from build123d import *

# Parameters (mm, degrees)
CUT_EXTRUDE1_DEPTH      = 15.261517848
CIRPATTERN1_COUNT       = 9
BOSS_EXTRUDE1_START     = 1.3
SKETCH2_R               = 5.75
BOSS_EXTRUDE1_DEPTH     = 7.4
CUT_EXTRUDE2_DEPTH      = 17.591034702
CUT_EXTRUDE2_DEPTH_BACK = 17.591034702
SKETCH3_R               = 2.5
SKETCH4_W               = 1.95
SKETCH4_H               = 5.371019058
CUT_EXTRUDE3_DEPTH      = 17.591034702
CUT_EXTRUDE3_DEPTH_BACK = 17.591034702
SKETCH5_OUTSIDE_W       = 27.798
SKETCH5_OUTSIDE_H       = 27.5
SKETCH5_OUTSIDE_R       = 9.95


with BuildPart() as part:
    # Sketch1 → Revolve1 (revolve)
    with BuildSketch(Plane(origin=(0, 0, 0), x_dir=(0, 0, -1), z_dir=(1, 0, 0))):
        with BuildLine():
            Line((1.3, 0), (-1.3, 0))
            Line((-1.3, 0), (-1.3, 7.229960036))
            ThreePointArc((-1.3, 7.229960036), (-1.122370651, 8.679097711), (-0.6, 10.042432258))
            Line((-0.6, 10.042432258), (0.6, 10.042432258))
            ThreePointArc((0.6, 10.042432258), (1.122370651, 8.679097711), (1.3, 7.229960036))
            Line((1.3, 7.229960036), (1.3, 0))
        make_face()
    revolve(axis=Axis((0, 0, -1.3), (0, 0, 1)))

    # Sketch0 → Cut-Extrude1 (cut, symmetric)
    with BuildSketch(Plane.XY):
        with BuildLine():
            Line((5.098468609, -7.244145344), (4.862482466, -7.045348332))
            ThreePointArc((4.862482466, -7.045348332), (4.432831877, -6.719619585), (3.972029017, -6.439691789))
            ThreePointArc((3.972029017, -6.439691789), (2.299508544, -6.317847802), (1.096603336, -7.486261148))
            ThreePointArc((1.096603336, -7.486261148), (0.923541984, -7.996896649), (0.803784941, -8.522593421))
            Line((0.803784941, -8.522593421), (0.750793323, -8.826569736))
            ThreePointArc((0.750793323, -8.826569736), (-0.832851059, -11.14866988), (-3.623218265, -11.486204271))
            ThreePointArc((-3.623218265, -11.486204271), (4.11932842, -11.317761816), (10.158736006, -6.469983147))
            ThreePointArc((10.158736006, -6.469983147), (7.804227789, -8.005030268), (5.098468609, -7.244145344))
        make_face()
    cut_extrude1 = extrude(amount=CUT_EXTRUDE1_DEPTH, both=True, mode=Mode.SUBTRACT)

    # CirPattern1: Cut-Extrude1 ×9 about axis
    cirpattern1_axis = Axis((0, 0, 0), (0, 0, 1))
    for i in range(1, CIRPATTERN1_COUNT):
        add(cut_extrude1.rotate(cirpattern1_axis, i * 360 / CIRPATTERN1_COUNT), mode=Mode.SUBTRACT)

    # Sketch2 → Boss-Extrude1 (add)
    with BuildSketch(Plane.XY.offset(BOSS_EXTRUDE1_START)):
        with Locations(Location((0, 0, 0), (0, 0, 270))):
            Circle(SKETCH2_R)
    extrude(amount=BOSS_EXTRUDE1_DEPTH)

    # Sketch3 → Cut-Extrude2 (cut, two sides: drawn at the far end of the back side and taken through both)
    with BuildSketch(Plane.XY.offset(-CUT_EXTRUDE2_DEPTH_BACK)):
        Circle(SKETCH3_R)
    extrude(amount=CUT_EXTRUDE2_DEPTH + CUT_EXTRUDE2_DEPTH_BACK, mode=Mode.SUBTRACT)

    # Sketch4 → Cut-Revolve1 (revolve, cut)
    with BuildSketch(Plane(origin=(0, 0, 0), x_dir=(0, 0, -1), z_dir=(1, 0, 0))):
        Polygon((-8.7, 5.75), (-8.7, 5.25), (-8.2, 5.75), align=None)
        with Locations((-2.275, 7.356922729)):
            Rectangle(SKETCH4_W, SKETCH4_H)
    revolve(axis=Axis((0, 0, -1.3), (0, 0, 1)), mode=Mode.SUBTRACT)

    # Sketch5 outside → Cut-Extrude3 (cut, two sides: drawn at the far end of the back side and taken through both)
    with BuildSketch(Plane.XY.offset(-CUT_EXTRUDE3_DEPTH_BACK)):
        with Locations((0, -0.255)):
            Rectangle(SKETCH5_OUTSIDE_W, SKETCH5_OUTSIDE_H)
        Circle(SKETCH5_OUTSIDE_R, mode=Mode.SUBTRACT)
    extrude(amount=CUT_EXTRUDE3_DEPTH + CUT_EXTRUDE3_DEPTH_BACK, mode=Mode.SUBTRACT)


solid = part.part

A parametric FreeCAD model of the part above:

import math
import FreeCAD as App
import Part
import Sketcher

V = App.Vector
Q = App.Units.Quantity


def add_polygon(sketch, points):
    """Adds a closed chain of lines whose ends are joined by coincident constraints."""
    first, n = sketch.GeometryCount, len(points)
    for a, b in zip(points, points[1:] + points[:1]):
        sketch.addGeometry(Part.LineSegment(App.Vector(*a, 0), App.Vector(*b, 0)), False)
    for i in range(n):
        sketch.addConstraint(Sketcher.Constraint("Coincident", first + i, 2, first + (i + 1) % n, 1))

doc = App.newDocument("Part")
body = doc.addObject("PartDesign::Body", "Body")

sketch1 = body.newObject("Sketcher::SketchObject", "Sketch")
sketch1.AttachmentSupport = (doc.getObject("YZ_Plane"), [""])
sketch1.MapMode = "FlatFace"
sketch1.addGeometry([
    Part.LineSegment(V(0, 1.3, 0), V(0, -1.3, 0)),
    Part.LineSegment(V(0, -1.3, 0), V(7.2, -1.3, 0)),
    Part.ArcOfCircle(Part.Circle(V(7.2, 4.7, 0), V(0, 0, 1), 6), math.radians(-90), math.radians(-62)),
    Part.LineSegment(V(10, -0.6, 0), V(10, 0.6, 0)),
    Part.ArcOfCircle(Part.Circle(V(7.2, -4.7, 0), V(0, 0, 1), 6), math.radians(62), math.radians(90)),
    Part.LineSegment(V(7.2, 1.3, 0), V(0, 1.3, 0)),
], False)
sketch1.addConstraint([
    Sketcher.Constraint("Coincident", 0, 2, 1, 1),
    Sketcher.Constraint("Tangent", 1, 2, 2, 1),
    Sketcher.Constraint("Coincident", 2, 2, 3, 1),
    Sketcher.Constraint("Coincident", 3, 2, 4, 1),
    Sketcher.Constraint("Tangent", 4, 2, 5, 1),
    Sketcher.Constraint("Coincident", 5, 2, 0, 1),
    Sketcher.Constraint("Vertical", 0),
    Sketcher.Constraint("Horizontal", 1),
    Sketcher.Constraint("Vertical", 3),
    Sketcher.Constraint("Horizontal", 5),
    Sketcher.Constraint("Equal", 2, 4),
    Sketcher.Constraint("Symmetric", 0, 2, 5, 2, -1, 1),
    Sketcher.Constraint("Vertical", 2, 3, 4, 3),
    Sketcher.Constraint("Radius", 2, Q("6 mm")),
    Sketcher.Constraint("DistanceY", 0, 2, 0, 1, Q("2.6 mm")),
    Sketcher.Constraint("DistanceY", 3, 1, 3, 2, Q("1.2 mm")),
    Sketcher.Constraint("DistanceX", 1, 1, 1, 2, Q("7.22996 mm")),
])
revolution = body.newObject("PartDesign::Revolution", "Revolution")
revolution.Profile = sketch1
revolution.ReferenceAxis = (sketch1, ["V_Axis"])
revolution.Angle = 360

sketch2 = body.newObject("Sketcher::SketchObject", "Sketch001")
sketch2.AttachmentSupport = (doc.getObject("XY_Plane"), [""])
sketch2.MapMode = "FlatFace"
sketch2.addGeometry([
    Part.LineSegment(V(5.1, -7.24, 0), V(4.86, -7.05, 0)),
    Part.ArcOfCircle(Part.Circle(V(1.48, -11.06, 0), V(0, 0, 1), 5.25), math.radians(49.89), math.radians(61.67)),
    Part.ArcOfCircle(Part.Circle(V(3, -8.24, 0), V(0, 0, 1), 2.05), math.radians(62), math.radians(158)),
    Part.ArcOfCircle(Part.Circle(V(5.97, -9.42, 0), V(0, 0, 1), 5.25), math.radians(158.33), math.radians(170.11)),
    Part.LineSegment(V(0.8, -8.52, 0), V(0.75, -8.83, 0)),
    Part.ArcOfCircle(Part.Circle(V(-2.6, -8.24, 0), V(0, 0, 1), 3.4), math.radians(-108), math.radians(-10)),
    Part.ArcOfCircle(Part.Circle(V(0, 0, 0), V(0, 0, 1), 12.04), math.radians(-108), math.radians(-32)),
    Part.ArcOfCircle(Part.Circle(V(7.29, -4.64, 0), V(0, 0, 1), 3.4), math.radians(-130), math.radians(-32)),
], False)
sketch2.addConstraint([
    Sketcher.Constraint("Tangent", 0, 2, 1, 1),
    Sketcher.Constraint("Tangent", 1, 2, 2, 1),
    Sketcher.Constraint("Tangent", 2, 2, 3, 1),
    Sketcher.Constraint("Tangent", 3, 2, 4, 1),
    Sketcher.Constraint("Tangent", 4, 2, 5, 2),
    Sketcher.Constraint("Tangent", 5, 1, 6, 1),
    Sketcher.Constraint("Tangent", 6, 2, 7, 2),
    Sketcher.Constraint("Tangent", 7, 1, 0, 1),
    Sketcher.Constraint("Coincident", 6, 3, -1, 1),
    Sketcher.Constraint("Equal", 1, 3),
    Sketcher.Constraint("Equal", 5, 7),
    Sketcher.Constraint("Horizontal", 2, 3, 5, 3),
    Sketcher.Constraint("Equal", 0, 4),
    Sketcher.Constraint("DistanceX", -1, 1, 2, 3, Q("3 mm")),
    Sketcher.Constraint("DistanceX", 5, 3, -1, 1, Q("2.6 mm")),
    Sketcher.Constraint("Radius", 1, Q("5.2481 mm")),
    Sketcher.Constraint("Radius", 2, Q("2.0481 mm")),
    Sketcher.Constraint("Radius", 5, Q("3.401328 mm")),
    Sketcher.Constraint("Radius", 6, Q("12.044111 mm")),
    Sketcher.Constraint("DistanceY", 3, 3, 1, 2, Q("2.9842 mm")),
    Sketcher.Constraint("DistanceY", 3, 2, 1, 2, Q("2.082902 mm")),
])
pocket1 = body.newObject("PartDesign::Pocket", "Pocket")
pocket1.Profile = sketch2
pocket1.Length = 30.523036
pocket1.Midplane = True
doc.recompute()

polarpattern = body.newObject("PartDesign::PolarPattern", "PolarPattern")
polarpattern.Originals = [pocket1]
polarpattern.Axis = (doc.getObject("Z_Axis"), [""])
polarpattern.Angle = 360
polarpattern.Occurrences = 9
body.Tip = polarpattern

sketch3 = body.newObject("Sketcher::SketchObject", "Sketch002")
sketch3.AttachmentSupport = (doc.getObject("XY_Plane"), [""])
sketch3.MapMode = "FlatFace"
sketch3.AttachmentOffset = App.Placement(V(0, 0, 1.3), App.Rotation())
sketch3.addGeometry(Part.Circle(V(0, 0, 0), V(0, 0, 1), 6), False)
sketch3.addConstraint([
    Sketcher.Constraint("Coincident", 0, 3, -1, 1),
    Sketcher.Constraint("Diameter", 0, Q("11.5 mm")),
])
pad1 = body.newObject("PartDesign::Pad", "Pad")
pad1.Profile = sketch3
pad1.Length = 7.4

sketch4 = body.newObject("Sketcher::SketchObject", "Sketch003")
sketch4.AttachmentSupport = (doc.getObject("XY_Plane"), [""])
sketch4.MapMode = "FlatFace"
sketch4.addGeometry(Part.Circle(V(0, 0, 0), V(0, 0, 1), 2.5), False)
sketch4.addConstraint([
    Sketcher.Constraint("Coincident", 0, 3, -1, 1),
    Sketcher.Constraint("Diameter", 0, Q("5 mm")),
])
pocket2 = body.newObject("PartDesign::Pocket", "Pocket001")
pocket2.Profile = sketch4
pocket2.Type = "ThroughAll"
pocket2.Midplane = True

sketch5 = body.newObject("Sketcher::SketchObject", "Sketch004")
sketch5.AttachmentSupport = (doc.getObject("YZ_Plane"), [""])
sketch5.MapMode = "FlatFace"
add_polygon(sketch5, [(5.8, 8.7), (5.2, 8.7), (5.8, 8.2)])
add_polygon(sketch5, [(10, 3.2), (4.7, 3.2), (4.7, 1.3), (10, 1.3)])
sketch5.addConstraint([
    Sketcher.Constraint("Horizontal", 0),
    Sketcher.Constraint("Vertical", 2),
    Sketcher.Constraint("Horizontal", 3),
    Sketcher.Constraint("Vertical", 4),
    Sketcher.Constraint("Horizontal", 5),
    Sketcher.Constraint("Vertical", 6),
    Sketcher.Constraint("Equal", 0, 2),
    Sketcher.Constraint("DistanceX", 0, 2, 0, 1, Q("0.5 mm")),
    Sketcher.Constraint("DistanceY", 4, 2, 4, 1, Q("1.95 mm")),
    Sketcher.Constraint("DistanceY", -1, 1, 0, 2, Q("8.7 mm")),
    Sketcher.Constraint("DistanceY", -1, 1, 4, 2, Q("1.3 mm")),
    Sketcher.Constraint("DistanceX", -1, 1, 0, 2, Q("5.25 mm")),
    Sketcher.Constraint("DistanceX", 3, 2, 3, 1, Q("5.371019 mm")),
    Sketcher.Constraint("DistanceX", -1, 1, 3, 2, Q("4.671413 mm")),
])
groove = body.newObject("PartDesign::Groove", "Groove")
groove.Profile = sketch5
groove.ReferenceAxis = (sketch5, ["V_Axis"])
groove.Angle = 360

sketch6 = body.newObject("Sketcher::SketchObject", "Sketch005")
sketch6.AttachmentSupport = (doc.getObject("XY_Plane"), [""])
sketch6.MapMode = "FlatFace"
add_polygon(sketch6, [(-14, 13), (-14, -14), (14, -14), (14, 13)])
sketch6.addGeometry(Part.Circle(V(0, 0, 0), V(0, 0, 1), 10), False)
sketch6.addConstraint([
    Sketcher.Constraint("Vertical", 0),
    Sketcher.Constraint("Horizontal", 1),
    Sketcher.Constraint("Vertical", 2),
    Sketcher.Constraint("Horizontal", 3),
    Sketcher.Constraint("Coincident", 4, 3, -1, 1),
    Sketcher.Constraint("Diameter", 4, Q("19.9 mm")),
    Sketcher.Constraint("DistanceY", 0, 2, 0, 1, Q("27.5 mm")),
    Sketcher.Constraint("DistanceX", 1, 1, 1, 2, Q("27.798 mm")),
    Sketcher.Constraint("DistanceX", 0, 2, -1, 1, Q("13.899 mm")),
    Sketcher.Constraint("DistanceY", 0, 2, -1, 1, Q("14.005 mm")),
])
pocket3 = body.newObject("PartDesign::Pocket", "Pocket002")
pocket3.Profile = sketch6
pocket3.Type = "ThroughAll"
pocket3.Midplane = True

doc.recompute()
